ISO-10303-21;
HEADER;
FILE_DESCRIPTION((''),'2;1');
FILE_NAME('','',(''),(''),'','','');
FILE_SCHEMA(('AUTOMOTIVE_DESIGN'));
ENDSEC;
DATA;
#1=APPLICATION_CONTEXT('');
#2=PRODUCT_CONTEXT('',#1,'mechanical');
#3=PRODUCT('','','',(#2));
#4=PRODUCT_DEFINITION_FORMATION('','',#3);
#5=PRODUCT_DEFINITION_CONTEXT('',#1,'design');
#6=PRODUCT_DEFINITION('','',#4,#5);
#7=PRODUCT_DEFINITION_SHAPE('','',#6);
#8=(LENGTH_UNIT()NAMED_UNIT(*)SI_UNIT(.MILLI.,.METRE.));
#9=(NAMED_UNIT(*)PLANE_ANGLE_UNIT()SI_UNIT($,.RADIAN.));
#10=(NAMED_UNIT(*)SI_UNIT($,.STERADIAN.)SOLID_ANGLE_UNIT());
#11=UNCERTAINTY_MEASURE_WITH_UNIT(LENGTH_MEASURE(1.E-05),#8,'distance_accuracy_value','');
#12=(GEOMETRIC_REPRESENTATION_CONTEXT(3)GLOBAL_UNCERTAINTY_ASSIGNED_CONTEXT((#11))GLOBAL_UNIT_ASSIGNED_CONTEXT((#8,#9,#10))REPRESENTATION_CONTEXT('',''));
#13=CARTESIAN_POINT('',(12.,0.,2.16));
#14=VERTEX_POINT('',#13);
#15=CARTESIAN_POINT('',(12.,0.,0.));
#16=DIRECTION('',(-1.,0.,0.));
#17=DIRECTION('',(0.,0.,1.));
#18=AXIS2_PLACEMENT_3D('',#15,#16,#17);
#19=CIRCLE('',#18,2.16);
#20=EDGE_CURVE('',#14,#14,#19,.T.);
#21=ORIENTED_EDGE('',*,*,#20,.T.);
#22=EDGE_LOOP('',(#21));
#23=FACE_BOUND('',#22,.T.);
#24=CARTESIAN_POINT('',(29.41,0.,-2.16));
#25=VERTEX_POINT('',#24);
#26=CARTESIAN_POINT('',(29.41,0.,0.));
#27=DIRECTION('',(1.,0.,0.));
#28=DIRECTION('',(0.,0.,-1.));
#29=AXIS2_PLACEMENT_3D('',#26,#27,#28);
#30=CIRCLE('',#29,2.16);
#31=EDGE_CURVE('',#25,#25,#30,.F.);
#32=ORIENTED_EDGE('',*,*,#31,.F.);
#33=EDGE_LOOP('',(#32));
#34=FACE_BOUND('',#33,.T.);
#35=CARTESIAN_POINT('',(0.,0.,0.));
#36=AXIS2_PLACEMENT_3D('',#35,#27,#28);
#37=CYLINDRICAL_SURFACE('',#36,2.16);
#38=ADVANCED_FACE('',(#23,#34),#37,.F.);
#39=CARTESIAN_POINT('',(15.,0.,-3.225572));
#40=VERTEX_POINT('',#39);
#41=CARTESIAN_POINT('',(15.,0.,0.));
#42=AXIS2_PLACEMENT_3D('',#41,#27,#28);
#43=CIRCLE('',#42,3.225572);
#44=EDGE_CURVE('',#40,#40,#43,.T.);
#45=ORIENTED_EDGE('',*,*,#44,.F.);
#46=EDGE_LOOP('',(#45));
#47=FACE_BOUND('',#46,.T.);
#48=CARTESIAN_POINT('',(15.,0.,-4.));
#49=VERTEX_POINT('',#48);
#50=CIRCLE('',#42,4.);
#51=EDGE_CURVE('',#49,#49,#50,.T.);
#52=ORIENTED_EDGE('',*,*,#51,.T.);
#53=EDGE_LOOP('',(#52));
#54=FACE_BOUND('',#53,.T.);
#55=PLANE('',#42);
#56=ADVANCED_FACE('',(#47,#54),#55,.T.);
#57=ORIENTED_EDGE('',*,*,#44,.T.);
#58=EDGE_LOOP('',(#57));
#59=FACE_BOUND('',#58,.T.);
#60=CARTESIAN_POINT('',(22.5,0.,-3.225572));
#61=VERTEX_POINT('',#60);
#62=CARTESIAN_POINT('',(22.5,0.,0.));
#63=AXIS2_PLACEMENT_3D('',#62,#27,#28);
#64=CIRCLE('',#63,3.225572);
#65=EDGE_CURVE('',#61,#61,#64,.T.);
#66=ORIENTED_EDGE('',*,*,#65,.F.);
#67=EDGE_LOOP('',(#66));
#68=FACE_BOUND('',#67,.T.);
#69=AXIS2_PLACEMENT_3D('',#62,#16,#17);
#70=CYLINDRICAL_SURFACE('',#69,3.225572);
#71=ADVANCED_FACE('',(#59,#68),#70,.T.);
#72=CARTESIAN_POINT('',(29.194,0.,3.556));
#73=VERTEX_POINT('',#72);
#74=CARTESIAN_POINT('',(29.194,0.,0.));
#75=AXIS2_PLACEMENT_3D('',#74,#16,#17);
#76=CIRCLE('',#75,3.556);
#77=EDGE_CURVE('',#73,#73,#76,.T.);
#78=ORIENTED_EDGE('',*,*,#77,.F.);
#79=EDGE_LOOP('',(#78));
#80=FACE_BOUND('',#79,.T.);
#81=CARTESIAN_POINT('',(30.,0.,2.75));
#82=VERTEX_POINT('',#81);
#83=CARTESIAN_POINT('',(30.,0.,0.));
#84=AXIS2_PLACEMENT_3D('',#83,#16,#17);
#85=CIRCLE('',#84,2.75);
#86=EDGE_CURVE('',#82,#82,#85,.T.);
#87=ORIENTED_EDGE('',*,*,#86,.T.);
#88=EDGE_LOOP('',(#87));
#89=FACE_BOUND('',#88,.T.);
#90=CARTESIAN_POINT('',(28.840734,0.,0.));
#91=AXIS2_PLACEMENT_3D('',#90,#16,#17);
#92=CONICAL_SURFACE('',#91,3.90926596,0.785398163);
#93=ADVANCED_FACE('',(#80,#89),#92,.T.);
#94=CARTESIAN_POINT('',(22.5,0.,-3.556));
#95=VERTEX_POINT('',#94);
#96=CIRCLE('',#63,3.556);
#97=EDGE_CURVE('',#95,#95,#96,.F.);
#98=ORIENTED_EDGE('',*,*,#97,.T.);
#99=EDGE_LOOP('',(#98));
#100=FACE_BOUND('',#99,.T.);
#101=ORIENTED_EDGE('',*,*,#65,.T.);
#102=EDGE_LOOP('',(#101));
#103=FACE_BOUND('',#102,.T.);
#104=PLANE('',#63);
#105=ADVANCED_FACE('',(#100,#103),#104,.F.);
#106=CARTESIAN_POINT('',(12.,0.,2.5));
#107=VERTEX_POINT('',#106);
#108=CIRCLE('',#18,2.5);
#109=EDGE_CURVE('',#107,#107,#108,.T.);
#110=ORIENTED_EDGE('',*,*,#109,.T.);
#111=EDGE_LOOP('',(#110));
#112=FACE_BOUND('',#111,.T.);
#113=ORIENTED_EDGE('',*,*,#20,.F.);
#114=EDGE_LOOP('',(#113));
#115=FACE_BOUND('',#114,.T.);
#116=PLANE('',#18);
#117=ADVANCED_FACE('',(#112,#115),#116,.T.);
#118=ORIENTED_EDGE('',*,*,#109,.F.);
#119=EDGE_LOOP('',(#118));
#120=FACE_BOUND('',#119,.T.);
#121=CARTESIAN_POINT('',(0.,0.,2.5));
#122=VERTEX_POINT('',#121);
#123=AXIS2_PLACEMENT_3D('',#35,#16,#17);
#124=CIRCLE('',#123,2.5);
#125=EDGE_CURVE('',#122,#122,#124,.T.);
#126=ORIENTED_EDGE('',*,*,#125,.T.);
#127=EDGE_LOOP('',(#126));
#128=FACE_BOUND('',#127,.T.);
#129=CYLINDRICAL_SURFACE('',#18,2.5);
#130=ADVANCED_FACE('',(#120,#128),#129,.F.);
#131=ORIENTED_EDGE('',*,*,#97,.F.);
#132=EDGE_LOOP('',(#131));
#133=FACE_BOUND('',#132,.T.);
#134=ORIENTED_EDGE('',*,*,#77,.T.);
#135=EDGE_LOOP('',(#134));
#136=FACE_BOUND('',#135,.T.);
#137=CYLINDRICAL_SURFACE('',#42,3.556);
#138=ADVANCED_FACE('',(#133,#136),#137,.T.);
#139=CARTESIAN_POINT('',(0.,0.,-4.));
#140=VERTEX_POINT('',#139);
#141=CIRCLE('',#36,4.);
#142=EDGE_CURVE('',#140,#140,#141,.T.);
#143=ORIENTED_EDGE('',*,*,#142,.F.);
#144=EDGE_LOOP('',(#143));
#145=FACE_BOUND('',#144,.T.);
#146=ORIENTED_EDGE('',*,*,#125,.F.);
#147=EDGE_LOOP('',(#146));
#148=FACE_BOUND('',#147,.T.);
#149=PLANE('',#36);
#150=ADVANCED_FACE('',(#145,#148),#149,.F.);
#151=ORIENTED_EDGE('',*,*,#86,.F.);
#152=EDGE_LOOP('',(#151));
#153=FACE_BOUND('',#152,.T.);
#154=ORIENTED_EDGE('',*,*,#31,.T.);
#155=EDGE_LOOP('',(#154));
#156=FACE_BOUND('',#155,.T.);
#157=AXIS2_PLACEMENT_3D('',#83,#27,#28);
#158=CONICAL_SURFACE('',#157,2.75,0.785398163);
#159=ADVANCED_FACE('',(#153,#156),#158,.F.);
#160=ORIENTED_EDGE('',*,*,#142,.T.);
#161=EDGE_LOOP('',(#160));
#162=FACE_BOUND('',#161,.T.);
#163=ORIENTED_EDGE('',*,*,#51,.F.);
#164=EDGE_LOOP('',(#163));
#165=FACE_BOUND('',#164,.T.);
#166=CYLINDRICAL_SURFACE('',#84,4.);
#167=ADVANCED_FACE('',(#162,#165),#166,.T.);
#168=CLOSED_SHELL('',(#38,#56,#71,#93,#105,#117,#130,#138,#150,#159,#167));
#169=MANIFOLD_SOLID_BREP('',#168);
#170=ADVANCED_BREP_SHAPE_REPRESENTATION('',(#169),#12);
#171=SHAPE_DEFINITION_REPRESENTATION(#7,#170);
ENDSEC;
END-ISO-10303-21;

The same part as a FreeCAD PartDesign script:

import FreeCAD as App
import Part
import Sketcher


def add_polygon(sketch, points):
    """Adds a closed chain of lines whose ends are joined by coincident constraints."""
    first, n = sketch.GeometryCount, len(points)
    for a, b in zip(points, points[1:] + points[:1]):
        sketch.addGeometry(Part.LineSegment(App.Vector(*a, 0), App.Vector(*b, 0)), False)
    for i in range(n):
        sketch.addConstraint(Sketcher.Constraint("Coincident", first + i, 2, first + (i + 1) % n, 1))

doc = App.newDocument("Part")
body = doc.addObject("PartDesign::Body", "Body")

# Sketch on YZ plane
sketch1 = body.newObject("Sketcher::SketchObject", "Sketch")
sketch1.AttachmentSupport = (doc.getObject("YZ_Plane"), [""])
sketch1.MapMode = "FlatFace"
sketch1.addGeometry(Part.Circle(App.Vector(0, 0, 0), App.Vector(0, 0, 1), 4), False)
sketch1.addConstraint([
    Sketcher.Constraint("Coincident", 0, 3, -1, 1),
    Sketcher.Constraint("Diameter", 0, 8.0),
])
pad1 = body.newObject("PartDesign::Pad", "Pad")
pad1.Profile = sketch1
pad1.Length = 30

# Sketch on YZ plane
sketch2 = body.newObject("Sketcher::SketchObject", "Sketch001")
sketch2.AttachmentSupport = (doc.getObject("YZ_Plane"), [""])
sketch2.MapMode = "FlatFace"
sketch2.addGeometry(Part.Circle(App.Vector(0, 0, 0), App.Vector(0, 0, 1), 2.5), False)
sketch2.addConstraint([
    Sketcher.Constraint("Coincident", 0, 3, -1, 1),
    Sketcher.Constraint("Diameter", 0, 5.0),
])
pocket1 = body.newObject("PartDesign::Pocket", "Pocket")
pocket1.Profile = sketch2
pocket1.Length = 12
pocket1.Reversed = True

# Sketch on YZ plane
sketch3 = body.newObject("Sketcher::SketchObject", "Sketch002")
sketch3.AttachmentSupport = (doc.getObject("YZ_Plane"), [""])
sketch3.MapMode = "FlatFace"
sketch3.AttachmentOffset = App.Placement(App.Vector(0, 0, 30), App.Rotation())
sketch3.addGeometry(Part.Circle(App.Vector(0, 0, 0), App.Vector(0, 0, 1), 2.2), False)
sketch3.addConstraint([
    Sketcher.Constraint("Coincident", 0, 3, -1, 1),
    Sketcher.Constraint("Diameter", 0, 4.32),
])
pocket2 = body.newObject("PartDesign::Pocket", "Pocket001")
pocket2.Profile = sketch3
pocket2.Type = "ThroughAll"

# Sketch on YZ plane
sketch4 = body.newObject("Sketcher::SketchObject", "Sketch003")
sketch4.AttachmentSupport = (doc.getObject("YZ_Plane"), [""])
sketch4.MapMode = "FlatFace"
sketch4.AttachmentOffset = App.Placement(App.Vector(0, 0, 30), App.Rotation())
add_polygon(sketch4, [(8.2, 8.2), (-8.2, 8.2), (-8.2, -8.2), (8.2, -8.2)])  # lines 0-3
sketch4.addGeometry(Part.Circle(App.Vector(0, 0, 0), App.Vector(0, 0, 1), 3.6), False)  # 4
sketch4.addConstraint([
    Sketcher.Constraint("Horizontal", 0),
    Sketcher.Constraint("Vertical", 1),
    Sketcher.Constraint("Horizontal", 2),
    Sketcher.Constraint("Vertical", 3),
    Sketcher.Constraint("Coincident", 4, 3, -1, 1),
    Sketcher.Constraint("Symmetric", 0, 2, 2, 2, -1, 1),
    Sketcher.Constraint("Equal", 2, 1),
    Sketcher.Constraint("Diameter", 4, 7.112),
    Sketcher.Constraint("DistanceX", 0, 2, 0, 1, 16.412),
])
pocket3 = body.newObject("PartDesign::Pocket", "Pocket002")
pocket3.Profile = sketch4
pocket3.Length = 15

# Sketch on YZ plane
sketch5 = body.newObject("Sketcher::SketchObject", "Sketch004")
sketch5.AttachmentSupport = (doc.getObject("YZ_Plane"), [""])
sketch5.MapMode = "FlatFace"
sketch5.AttachmentOffset = App.Placement(App.Vector(0, 0, 15), App.Rotation())
add_polygon(sketch5, [(8.2, 8.2), (-8.2, 8.2), (-8.2, -8.2), (8.2, -8.2)])  # lines 0-3
sketch5.addGeometry(Part.Circle(App.Vector(0, 0, 0), App.Vector(0, 0, 1), 3.2), False)  # 4
sketch5.addConstraint([
    Sketcher.Constraint("Horizontal", 0),
    Sketcher.Constraint("Vertical", 1),
    Sketcher.Constraint("Horizontal", 2),
    Sketcher.Constraint("Vertical", 3),
    Sketcher.Constraint("Coincident", 4, 3, -1, 1),
    Sketcher.Constraint("Symmetric", 0, 2, 2, 2, -1, 1),
    Sketcher.Constraint("Equal", 2, 1),
    Sketcher.Constraint("DistanceX", 0, 2, 0, 1, 16.412),
    Sketcher.Constraint("Diameter", 4, 6.451144),
])
pocket4 = body.newObject("PartDesign::Pocket", "Pocket003")
pocket4.Profile = sketch5
pocket4.Length = 7.5
pocket4.Reversed = True

# Sketch on XY plane
sketch6 = body.newObject("Sketcher::SketchObject", "Sketch005")
sketch6.AttachmentSupport = (doc.getObject("XY_Plane"), [""])
sketch6.MapMode = "FlatFace"
add_polygon(sketch6, [(28.8, 3.9), (30, 2.8), (28.8, 1.6), (31.4, 1.6), (31.4, 3.9)])  # lines 0-4
sketch6.addConstraint([
    Sketcher.Constraint("Horizontal", 2),
    Sketcher.Constraint("Vertical", 3),
    Sketcher.Constraint("Horizontal", 4),
    Sketcher.Constraint("Perpendicular", 0, 1),
    Sketcher.Constraint("Vertical", 1, 2, 4, 2),
    Sketcher.Constraint("Equal", 0, 1),
    Sketcher.Constraint("DistanceX", -1, 1, 0, 2, 30.0),
    Sketcher.Constraint("DistanceY", -1, 1, 0, 2, 2.75),
    Sketcher.Constraint("DistanceY", 3, 1, 3, 2, 2.318532),
    Sketcher.Constraint("DistanceX", 2, 1, 2, 2, 2.510716),
])
groove = body.newObject("PartDesign::Groove", "Groove")
groove.Profile = sketch6
groove.ReferenceAxis = (sketch6, ["H_Axis"])
groove.Angle = 360

doc.recompute()
